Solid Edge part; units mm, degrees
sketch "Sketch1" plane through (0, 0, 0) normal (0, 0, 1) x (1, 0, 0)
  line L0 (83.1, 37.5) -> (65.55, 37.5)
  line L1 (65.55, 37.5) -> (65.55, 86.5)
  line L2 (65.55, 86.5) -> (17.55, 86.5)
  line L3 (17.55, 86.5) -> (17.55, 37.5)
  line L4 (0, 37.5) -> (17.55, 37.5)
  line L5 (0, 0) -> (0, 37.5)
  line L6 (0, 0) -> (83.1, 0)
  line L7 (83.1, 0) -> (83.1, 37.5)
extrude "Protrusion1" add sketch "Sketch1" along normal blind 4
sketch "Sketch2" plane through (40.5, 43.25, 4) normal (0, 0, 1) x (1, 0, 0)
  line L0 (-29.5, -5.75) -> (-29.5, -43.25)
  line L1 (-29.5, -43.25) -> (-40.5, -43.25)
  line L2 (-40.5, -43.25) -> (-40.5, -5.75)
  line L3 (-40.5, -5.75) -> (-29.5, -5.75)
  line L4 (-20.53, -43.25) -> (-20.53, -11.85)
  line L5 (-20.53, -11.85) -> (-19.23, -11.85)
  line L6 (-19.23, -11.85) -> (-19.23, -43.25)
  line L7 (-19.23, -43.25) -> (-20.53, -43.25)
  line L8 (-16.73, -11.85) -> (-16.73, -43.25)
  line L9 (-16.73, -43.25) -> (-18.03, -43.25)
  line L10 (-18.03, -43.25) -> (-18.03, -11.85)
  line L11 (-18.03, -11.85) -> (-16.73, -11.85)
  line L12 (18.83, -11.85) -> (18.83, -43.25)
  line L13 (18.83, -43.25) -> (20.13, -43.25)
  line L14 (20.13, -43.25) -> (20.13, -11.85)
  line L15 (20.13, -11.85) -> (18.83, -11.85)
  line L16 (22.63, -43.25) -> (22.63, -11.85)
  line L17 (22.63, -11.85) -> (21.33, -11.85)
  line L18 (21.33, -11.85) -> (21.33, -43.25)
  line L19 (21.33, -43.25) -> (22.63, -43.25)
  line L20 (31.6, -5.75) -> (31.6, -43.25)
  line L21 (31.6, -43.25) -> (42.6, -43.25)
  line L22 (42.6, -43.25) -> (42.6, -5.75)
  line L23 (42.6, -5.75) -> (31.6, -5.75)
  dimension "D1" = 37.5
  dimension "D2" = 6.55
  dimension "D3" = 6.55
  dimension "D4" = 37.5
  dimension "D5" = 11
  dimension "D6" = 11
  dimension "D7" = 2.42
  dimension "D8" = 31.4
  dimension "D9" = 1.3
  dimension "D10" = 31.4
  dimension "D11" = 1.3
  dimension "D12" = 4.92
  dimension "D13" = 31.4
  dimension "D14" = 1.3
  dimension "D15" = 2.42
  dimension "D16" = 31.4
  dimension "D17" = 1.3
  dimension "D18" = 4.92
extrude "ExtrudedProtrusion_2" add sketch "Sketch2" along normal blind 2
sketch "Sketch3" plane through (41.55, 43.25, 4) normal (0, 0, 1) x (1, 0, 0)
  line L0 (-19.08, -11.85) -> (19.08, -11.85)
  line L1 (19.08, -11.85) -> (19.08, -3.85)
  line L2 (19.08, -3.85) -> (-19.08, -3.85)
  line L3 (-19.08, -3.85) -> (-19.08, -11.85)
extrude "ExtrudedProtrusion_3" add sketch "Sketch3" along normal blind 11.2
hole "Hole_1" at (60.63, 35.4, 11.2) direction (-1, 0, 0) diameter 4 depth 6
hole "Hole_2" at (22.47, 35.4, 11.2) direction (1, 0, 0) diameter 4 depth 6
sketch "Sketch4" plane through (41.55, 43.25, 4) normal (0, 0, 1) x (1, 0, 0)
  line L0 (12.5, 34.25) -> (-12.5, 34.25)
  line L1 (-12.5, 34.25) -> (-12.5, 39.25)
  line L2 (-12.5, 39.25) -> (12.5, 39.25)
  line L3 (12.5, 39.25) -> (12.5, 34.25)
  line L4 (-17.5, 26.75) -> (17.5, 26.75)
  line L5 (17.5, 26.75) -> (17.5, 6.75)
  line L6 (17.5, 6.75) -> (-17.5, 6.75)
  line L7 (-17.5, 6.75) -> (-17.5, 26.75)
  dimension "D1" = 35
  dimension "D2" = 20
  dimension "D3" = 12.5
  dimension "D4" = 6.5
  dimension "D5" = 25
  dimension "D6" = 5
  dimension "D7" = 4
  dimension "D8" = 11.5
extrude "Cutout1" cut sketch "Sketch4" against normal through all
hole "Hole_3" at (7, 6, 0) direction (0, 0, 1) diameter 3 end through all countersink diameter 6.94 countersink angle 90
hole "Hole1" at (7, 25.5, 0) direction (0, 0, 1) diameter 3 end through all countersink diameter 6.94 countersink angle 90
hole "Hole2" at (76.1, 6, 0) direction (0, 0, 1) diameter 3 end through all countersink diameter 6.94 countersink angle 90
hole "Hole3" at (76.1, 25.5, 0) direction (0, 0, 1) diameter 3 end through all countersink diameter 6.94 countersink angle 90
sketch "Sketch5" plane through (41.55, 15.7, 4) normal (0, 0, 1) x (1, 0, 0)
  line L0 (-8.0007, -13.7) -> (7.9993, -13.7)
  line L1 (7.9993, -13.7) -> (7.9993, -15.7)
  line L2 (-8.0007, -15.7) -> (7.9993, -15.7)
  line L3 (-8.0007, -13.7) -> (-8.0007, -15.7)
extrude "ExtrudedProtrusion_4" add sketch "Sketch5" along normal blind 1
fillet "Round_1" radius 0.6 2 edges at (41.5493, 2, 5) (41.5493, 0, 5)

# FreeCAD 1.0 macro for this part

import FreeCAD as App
import Part
import Sketcher

V = App.Vector
Q = App.Units.Quantity


def edges_at(feature, points):
    """Names of the edges that pass closest to the given points."""
    edges = feature.Shape.Edges
    near = lambda p: min(range(len(edges)), key=lambda i: edges[i].distToShape(Part.Vertex(*p))[0])
    return sorted({f"Edge{near(p) + 1}" for p in points})


def add_polygon(sketch, points):
    """Adds a closed chain of lines whose ends are joined by coincident constraints."""
    first, n = sketch.GeometryCount, len(points)
    for a, b in zip(points, points[1:] + points[:1]):
        sketch.addGeometry(Part.LineSegment(App.Vector(*a, 0), App.Vector(*b, 0)), False)
    for i in range(n):
        sketch.addConstraint(Sketcher.Constraint("Coincident", first + i, 2, first + (i + 1) % n, 1))

doc = App.newDocument("Part")
body = doc.addObject("PartDesign::Body", "Body")

# Sketch on XY plane
sketch1 = body.newObject("Sketcher::SketchObject", "Sketch")
sketch1.AttachmentSupport = (doc.getObject("XY_Plane"), [""])
sketch1.MapMode = "FlatFace"
add_polygon(sketch1, [(83, 0), (83, 38), (66, 38), (66, 86), (18, 86), (18, 38), (0, 38), (0, 0)])  # lines 0-7
sketch1.addConstraint([
    Sketcher.Constraint("Vertical", 0),
    Sketcher.Constraint("Horizontal", 1),
    Sketcher.Constraint("Vertical", 2),
    Sketcher.Constraint("Horizontal", 3),
    Sketcher.Constraint("Vertical", 4),
    Sketcher.Constraint("Horizontal", 5),
    Sketcher.Constraint("Vertical", 6),
    Sketcher.Constraint("Horizontal", 7),
    Sketcher.Constraint("Coincident", 6, 2, -1, 1),
    Sketcher.Constraint("Horizontal", 1, 2, 4, 2),
    Sketcher.Constraint("Equal", 1, 5),
    Sketcher.Constraint("DistanceX", 3, 2, 3, 1, Q("48 mm")),
    Sketcher.Constraint("DistanceY", 2, 1, 2, 2, Q("49 mm")),
    Sketcher.Constraint("DistanceX", 7, 1, 7, 2, Q("83.1 mm")),
    Sketcher.Constraint("DistanceY", 0, 1, 0, 2, Q("37.5 mm")),
])
pad1 = body.newObject("PartDesign::Pad", "Pad")
pad1.Profile = sketch1
pad1.Length = 4

# Sketch on XY plane
sketch2 = body.newObject("Sketcher::SketchObject", "Sketch001")
sketch2.AttachmentSupport = (doc.getObject("XY_Plane"), [""])
sketch2.MapMode = "FlatFace"
sketch2.AttachmentOffset = App.Placement(V(0, 0, 4), App.Rotation())
add_polygon(sketch2, [(11, 0), (11, 37.5), (0, 37.5), (0, 0)])  # lines 0-3
add_polygon(sketch2, [(20, 31.4), (20, 0), (21.3, 0), (21.3, 31.4)])  # lines 4-7
add_polygon(sketch2, [(23.8, 0), (23.8, 31.4), (22.5, 31.4), (22.5, 0)])  # lines 8-11
add_polygon(sketch2, [(60.6, 31.4), (59.3, 31.4), (59.3, 0), (60.6, 0)])  # lines 12-15
add_polygon(sketch2, [(61.8, 0), (63.1, 0), (63.1, 31.4), (61.8, 31.4)])  # lines 16-19
add_polygon(sketch2, [(83.1, 37.5), (72.1, 37.5), (72.1, 0), (83.1, 0)])  # lines 20-23
sketch2.addConstraint([
    Sketcher.Constraint("Vertical", 0),
    Sketcher.Constraint("Horizontal", 1),
    Sketcher.Constraint("Vertical", 2),
    Sketcher.Constraint("Horizontal", 3),
    Sketcher.Constraint("Vertical", 4),
    Sketcher.Constraint("Horizontal", 5),
    Sketcher.Constraint("Vertical", 6),
    Sketcher.Constraint("Horizontal", 7),
    Sketcher.Constraint("Vertical", 8),
    Sketcher.Constraint("Horizontal", 9),
    Sketcher.Constraint("Vertical", 10),
    Sketcher.Constraint("Horizontal", 11),
    Sketcher.Constraint("Horizontal", 12),
    Sketcher.Constraint("Vertical", 13),
    Sketcher.Constraint("Horizontal", 14),
    Sketcher.Constraint("Vertical", 15),
    Sketcher.Constraint("Horizontal", 16),
    Sketcher.Constraint("Vertical", 17),
    Sketcher.Constraint("Horizontal", 18),
    Sketcher.Constraint("Vertical", 19),
    Sketcher.Constraint("Horizontal", 20),
    Sketcher.Constraint("Vertical", 21),
    Sketcher.Constraint("Horizontal", 22),
    Sketcher.Constraint("Vertical", 23),
    Sketcher.Constraint("Coincident", 2, 2, -1, 1),
    Sketcher.Constraint("PointOnObject", 4, 2, -1),
    Sketcher.Constraint("PointOnObject", 10, 2, -1),
    Sketcher.Constraint("PointOnObject", 13, 2, -1),
    Sketcher.Constraint("PointOnObject", 16, 2, -1),
    Sketcher.Constraint("PointOnObject", 21, 2, -1),
    Sketcher.Constraint("Horizontal", 7, 2, 8, 2),
    Sketcher.Constraint("Horizontal", 9, 2, 12, 2),
    Sketcher.Constraint("Horizontal", 15, 2, 17, 2),
    Sketcher.Constraint("Horizontal", 1, 2, 20, 2),
    Sketcher.Constraint("Equal", 7, 9),
    Sketcher.Constraint("Equal", 11, 12),
    Sketcher.Constraint("Equal", 14, 16),
    Sketcher.Constraint("Equal", 3, 20),
    Sketcher.Constraint("DistanceX", 1, 2, 1, 1, Q("11 mm")),
    Sketcher.Constraint("DistanceX", 5, 1, 5, 2, Q("1.3 mm")),
    Sketcher.Constraint("DistanceY", 0, 1, 0, 2, Q("37.5 mm")),
    Sketcher.Constraint("DistanceY", 4, 2, 4, 1, Q("31.4 mm")),
    Sketcher.Constraint("DistanceX", -1, 1, 20, 2, Q("72.1 mm")),
    Sketcher.Constraint("DistanceX", 6, 2, 8, 2, Q("2.5 mm")),
    Sketcher.Constraint("DistanceX", 14, 2, 16, 2, Q("2.5 mm")),
    Sketcher.Constraint("DistanceX", -1, 1, 4, 2, Q("19.97 mm")),
    Sketcher.Constraint("DistanceX", -1, 1, 12, 2, Q("59.33 mm")),
])
pad2 = body.newObject("PartDesign::Pad", "Pad001")
pad2.Profile = sketch2
pad2.Length = 2

# Sketch on XY plane
sketch3 = body.newObject("Sketcher::SketchObject", "Sketch002")
sketch3.AttachmentSupport = (doc.getObject("XY_Plane"), [""])
sketch3.MapMode = "FlatFace"
sketch3.AttachmentOffset = App.Placement(V(0, 0, 4), App.Rotation())
add_polygon(sketch3, [(22, 39), (22, 31), (61, 31), (61, 39)])  # lines 0-3
sketch3.addConstraint([
    Sketcher.Constraint("Vertical", 0),
    Sketcher.Constraint("Horizontal", 1),
    Sketcher.Constraint("Vertical", 2),
    Sketcher.Constraint("Horizontal", 3),
    Sketcher.Constraint("DistanceY", 0, 2, 0, 1, Q("8 mm")),
    Sketcher.Constraint("DistanceX", 1, 1, 1, 2, Q("38.16 mm")),
    Sketcher.Constraint("DistanceY", -1, 1, 0, 2, Q("31.4 mm")),
    Sketcher.Constraint("DistanceX", -1, 1, 0, 2, Q("22.47 mm")),
])
pad3 = body.newObject("PartDesign::Pad", "Pad002")
pad3.Profile = sketch3
pad3.Length = 11.2

# Sketch on YZ plane
sketch4 = body.newObject("Sketcher::SketchObject", "Sketch003")
sketch4.AttachmentSupport = (doc.getObject("YZ_Plane"), [""])
sketch4.MapMode = "FlatFace"
sketch4.AttachmentOffset = App.Placement(V(0, 0, 60.63), App.Rotation())
sketch4.addGeometry(Part.Circle(V(35.4, 11.2, 0), V(0, 0, 1), 2), False)
sketch4.addConstraint([
    Sketcher.Constraint("Diameter", 0, Q("4 mm")),
    Sketcher.Constraint("DistanceX", -1, 1, 0, 3, Q("35.4 mm")),
    Sketcher.Constraint("DistanceY", -1, 1, 0, 3, Q("11.2 mm")),
])
doc.recompute()
hole = body.newObject("PartDesign::Hole", "Hole")
hole.Profile = sketch4
hole.ThreadType = "None"
hole.Diameter = 4
hole.DepthType = "Dimension"
hole.Depth = 6
hole.DrillPoint = "Flat"

# Sketch on YZ plane
sketch5 = body.newObject("Sketcher::SketchObject", "Sketch004")
sketch5.AttachmentSupport = (doc.getObject("YZ_Plane"), [""])
sketch5.MapMode = "FlatFace"
sketch5.AttachmentOffset = App.Placement(V(0, 0, 22.47), App.Rotation())
sketch5.addGeometry(Part.Circle(V(35.4, 11.2, 0), V(0, 0, 1), 2), False)
sketch5.addConstraint([
    Sketcher.Constraint("Diameter", 0, Q("4 mm")),
    Sketcher.Constraint("DistanceX", -1, 1, 0, 3, Q("35.4 mm")),
    Sketcher.Constraint("DistanceY", -1, 1, 0, 3, Q("11.2 mm")),
])
doc.recompute()
hole2 = body.newObject("PartDesign::Hole", "Hole001")
hole2.Profile = sketch5
hole2.ThreadType = "None"
hole2.Diameter = 4
hole2.DepthType = "Dimension"
hole2.Depth = 6
hole2.DrillPoint = "Flat"
hole2.Reversed = True

# Sketch on XY plane
sketch6 = body.newObject("Sketcher::SketchObject", "Sketch005")
sketch6.AttachmentSupport = (doc.getObject("XY_Plane"), [""])
sketch6.MapMode = "FlatFace"
sketch6.AttachmentOffset = App.Placement(V(0, 0, 4), App.Rotation())
add_polygon(sketch6, [(29, 78), (54, 78), (54, 82), (29, 82)])  # lines 0-3
add_polygon(sketch6, [(59, 70), (24, 70), (24, 50), (59, 50)])  # lines 4-7
sketch6.addConstraint([
    Sketcher.Constraint("Horizontal", 0),
    Sketcher.Constraint("Vertical", 1),
    Sketcher.Constraint("Horizontal", 2),
    Sketcher.Constraint("Vertical", 3),
    Sketcher.Constraint("Horizontal", 4),
    Sketcher.Constraint("Vertical", 5),
    Sketcher.Constraint("Horizontal", 6),
    Sketcher.Constraint("Vertical", 7),
    Sketcher.Constraint("DistanceX", 0, 1, 0, 2, Q("25 mm")),
    Sketcher.Constraint("DistanceX", 4, 2, 4, 1, Q("35 mm")),
    Sketcher.Constraint("DistanceY", 1, 1, 1, 2, Q("5 mm")),
    Sketcher.Constraint("DistanceY", 5, 2, 5, 1, Q("20 mm")),
    Sketcher.Constraint("DistanceY", -1, 1, 4, 2, Q("70 mm")),
    Sketcher.Constraint("DistanceX", 4, 2, 3, 2, Q("5 mm")),
    Sketcher.Constraint("DistanceY", -1, 1, 0, 2, Q("77.5 mm")),
    Sketcher.Constraint("DistanceX", -1, 1, 0, 2, Q("54.05 mm")),
])
pocket1 = body.newObject("PartDesign::Pocket", "Pocket")
pocket1.Profile = sketch6
pocket1.Type = "ThroughAll"

# Sketch on XY plane
sketch7 = body.newObject("Sketcher::SketchObject", "Sketch006")
sketch7.AttachmentSupport = (doc.getObject("XY_Plane"), [""])
sketch7.MapMode = "FlatFace"
sketch7.addGeometry(Part.Circle(V(7, 6, 0), V(0, 0, 1), 1.5), False)
sketch7.addConstraint([
    Sketcher.Constraint("Diameter", 0, Q("3 mm")),
    Sketcher.Constraint("DistanceX", -1, 1, 0, 3, Q("7 mm")),
    Sketcher.Constraint("DistanceY", -1, 1, 0, 3, Q("6 mm")),
])
doc.recompute()
hole3 = body.newObject("PartDesign::Hole", "Hole002")
hole3.Profile = sketch7
hole3.ThreadType = "None"
hole3.Diameter = 3
hole3.DepthType = "ThroughAll"
hole3.HoleCutType = "Countersink"
hole3.HoleCutDiameter = 6.94
hole3.HoleCutCountersinkAngle = 90
hole3.Reversed = True

# Sketch on XY plane
sketch8 = body.newObject("Sketcher::SketchObject", "Sketch007")
sketch8.AttachmentSupport = (doc.getObject("XY_Plane"), [""])
sketch8.MapMode = "FlatFace"
sketch8.addGeometry(Part.Circle(V(7, 25.5, 0), V(0, 0, 1), 1.5), False)
sketch8.addConstraint([
    Sketcher.Constraint("Diameter", 0, Q("3 mm")),
    Sketcher.Constraint("DistanceX", -1, 1, 0, 3, Q("7 mm")),
    Sketcher.Constraint("DistanceY", -1, 1, 0, 3, Q("25.5 mm")),
])
doc.recompute()
hole4 = body.newObject("PartDesign::Hole", "Hole003")
hole4.Profile = sketch8
hole4.ThreadType = "None"
hole4.Diameter = 3
hole4.DepthType = "ThroughAll"
hole4.HoleCutType = "Countersink"
hole4.HoleCutDiameter = 6.94
hole4.HoleCutCountersinkAngle = 90
hole4.Reversed = True

# Sketch on XY plane
sketch9 = body.newObject("Sketcher::SketchObject", "Sketch008")
sketch9.AttachmentSupport = (doc.getObject("XY_Plane"), [""])
sketch9.MapMode = "FlatFace"
sketch9.addGeometry(Part.Circle(V(76.1, 6, 0), V(0, 0, 1), 1.5), False)
sketch9.addConstraint([
    Sketcher.Constraint("Diameter", 0, Q("3 mm")),
    Sketcher.Constraint("DistanceY", -1, 1, 0, 3, Q("6 mm")),
    Sketcher.Constraint("DistanceX", -1, 1, 0, 3, Q("76.1 mm")),
])
doc.recompute()
hole5 = body.newObject("PartDesign::Hole", "Hole004")
hole5.Profile = sketch9
hole5.ThreadType = "None"
hole5.Diameter = 3
hole5.DepthType = "ThroughAll"
hole5.HoleCutType = "Countersink"
hole5.HoleCutDiameter = 6.94
hole5.HoleCutCountersinkAngle = 90
hole5.Reversed = True

# Sketch on XY plane
sketch10 = body.newObject("Sketcher::SketchObject", "Sketch009")
sketch10.AttachmentSupport = (doc.getObject("XY_Plane"), [""])
sketch10.MapMode = "FlatFace"
sketch10.addGeometry(Part.Circle(V(76.1, 25.5, 0), V(0, 0, 1), 1.5), False)
sketch10.addConstraint([
    Sketcher.Constraint("Diameter", 0, Q("3 mm")),
    Sketcher.Constraint("DistanceX", -1, 1, 0, 3, Q("76.1 mm")),
    Sketcher.Constraint("DistanceY", -1, 1, 0, 3, Q("25.5 mm")),
])
doc.recompute()
hole6 = body.newObject("PartDesign::Hole", "Hole005")
hole6.Profile = sketch10
hole6.ThreadType = "None"
hole6.Diameter = 3
hole6.DepthType = "ThroughAll"
hole6.HoleCutType = "Countersink"
hole6.HoleCutDiameter = 6.94
hole6.HoleCutCountersinkAngle = 90
hole6.Reversed = True

# Sketch on XY plane
sketch11 = body.newObject("Sketcher::SketchObject", "Sketch010")
sketch11.AttachmentSupport = (doc.getObject("XY_Plane"), [""])
sketch11.MapMode = "FlatFace"
sketch11.AttachmentOffset = App.Placement(V(0, 0, 4), App.Rotation())
add_polygon(sketch11, [(49.5, 2), (33.5, 2), (33.5, 0), (49.5, 0)])  # lines 0-3
sketch11.addConstraint([
    Sketcher.Constraint("Horizontal", 0),
    Sketcher.Constraint("Vertical", 1),
    Sketcher.Constraint("Horizontal", 2),
    Sketcher.Constraint("Vertical", 3),
    Sketcher.Constraint("PointOnObject", 1, 2, -1),
    Sketcher.Constraint("DistanceX", 0, 2, 0, 1, Q("16 mm")),
    Sketcher.Constraint("DistanceY", 1, 2, 1, 1, Q("2 mm")),
    Sketcher.Constraint("DistanceX", -1, 1, 0, 2, Q("33.5493 mm")),
])
pad4 = body.newObject("PartDesign::Pad", "Pad003")
pad4.Profile = sketch11
pad4.Length = 1
doc.recompute()

fillet = body.newObject("PartDesign::Fillet", "Fillet")
fillet.Base = (pad4, edges_at(pad4, [(41.549, 2, 5), (41.549, 0, 5)]))
fillet.Radius = 0.6

doc.recompute()
